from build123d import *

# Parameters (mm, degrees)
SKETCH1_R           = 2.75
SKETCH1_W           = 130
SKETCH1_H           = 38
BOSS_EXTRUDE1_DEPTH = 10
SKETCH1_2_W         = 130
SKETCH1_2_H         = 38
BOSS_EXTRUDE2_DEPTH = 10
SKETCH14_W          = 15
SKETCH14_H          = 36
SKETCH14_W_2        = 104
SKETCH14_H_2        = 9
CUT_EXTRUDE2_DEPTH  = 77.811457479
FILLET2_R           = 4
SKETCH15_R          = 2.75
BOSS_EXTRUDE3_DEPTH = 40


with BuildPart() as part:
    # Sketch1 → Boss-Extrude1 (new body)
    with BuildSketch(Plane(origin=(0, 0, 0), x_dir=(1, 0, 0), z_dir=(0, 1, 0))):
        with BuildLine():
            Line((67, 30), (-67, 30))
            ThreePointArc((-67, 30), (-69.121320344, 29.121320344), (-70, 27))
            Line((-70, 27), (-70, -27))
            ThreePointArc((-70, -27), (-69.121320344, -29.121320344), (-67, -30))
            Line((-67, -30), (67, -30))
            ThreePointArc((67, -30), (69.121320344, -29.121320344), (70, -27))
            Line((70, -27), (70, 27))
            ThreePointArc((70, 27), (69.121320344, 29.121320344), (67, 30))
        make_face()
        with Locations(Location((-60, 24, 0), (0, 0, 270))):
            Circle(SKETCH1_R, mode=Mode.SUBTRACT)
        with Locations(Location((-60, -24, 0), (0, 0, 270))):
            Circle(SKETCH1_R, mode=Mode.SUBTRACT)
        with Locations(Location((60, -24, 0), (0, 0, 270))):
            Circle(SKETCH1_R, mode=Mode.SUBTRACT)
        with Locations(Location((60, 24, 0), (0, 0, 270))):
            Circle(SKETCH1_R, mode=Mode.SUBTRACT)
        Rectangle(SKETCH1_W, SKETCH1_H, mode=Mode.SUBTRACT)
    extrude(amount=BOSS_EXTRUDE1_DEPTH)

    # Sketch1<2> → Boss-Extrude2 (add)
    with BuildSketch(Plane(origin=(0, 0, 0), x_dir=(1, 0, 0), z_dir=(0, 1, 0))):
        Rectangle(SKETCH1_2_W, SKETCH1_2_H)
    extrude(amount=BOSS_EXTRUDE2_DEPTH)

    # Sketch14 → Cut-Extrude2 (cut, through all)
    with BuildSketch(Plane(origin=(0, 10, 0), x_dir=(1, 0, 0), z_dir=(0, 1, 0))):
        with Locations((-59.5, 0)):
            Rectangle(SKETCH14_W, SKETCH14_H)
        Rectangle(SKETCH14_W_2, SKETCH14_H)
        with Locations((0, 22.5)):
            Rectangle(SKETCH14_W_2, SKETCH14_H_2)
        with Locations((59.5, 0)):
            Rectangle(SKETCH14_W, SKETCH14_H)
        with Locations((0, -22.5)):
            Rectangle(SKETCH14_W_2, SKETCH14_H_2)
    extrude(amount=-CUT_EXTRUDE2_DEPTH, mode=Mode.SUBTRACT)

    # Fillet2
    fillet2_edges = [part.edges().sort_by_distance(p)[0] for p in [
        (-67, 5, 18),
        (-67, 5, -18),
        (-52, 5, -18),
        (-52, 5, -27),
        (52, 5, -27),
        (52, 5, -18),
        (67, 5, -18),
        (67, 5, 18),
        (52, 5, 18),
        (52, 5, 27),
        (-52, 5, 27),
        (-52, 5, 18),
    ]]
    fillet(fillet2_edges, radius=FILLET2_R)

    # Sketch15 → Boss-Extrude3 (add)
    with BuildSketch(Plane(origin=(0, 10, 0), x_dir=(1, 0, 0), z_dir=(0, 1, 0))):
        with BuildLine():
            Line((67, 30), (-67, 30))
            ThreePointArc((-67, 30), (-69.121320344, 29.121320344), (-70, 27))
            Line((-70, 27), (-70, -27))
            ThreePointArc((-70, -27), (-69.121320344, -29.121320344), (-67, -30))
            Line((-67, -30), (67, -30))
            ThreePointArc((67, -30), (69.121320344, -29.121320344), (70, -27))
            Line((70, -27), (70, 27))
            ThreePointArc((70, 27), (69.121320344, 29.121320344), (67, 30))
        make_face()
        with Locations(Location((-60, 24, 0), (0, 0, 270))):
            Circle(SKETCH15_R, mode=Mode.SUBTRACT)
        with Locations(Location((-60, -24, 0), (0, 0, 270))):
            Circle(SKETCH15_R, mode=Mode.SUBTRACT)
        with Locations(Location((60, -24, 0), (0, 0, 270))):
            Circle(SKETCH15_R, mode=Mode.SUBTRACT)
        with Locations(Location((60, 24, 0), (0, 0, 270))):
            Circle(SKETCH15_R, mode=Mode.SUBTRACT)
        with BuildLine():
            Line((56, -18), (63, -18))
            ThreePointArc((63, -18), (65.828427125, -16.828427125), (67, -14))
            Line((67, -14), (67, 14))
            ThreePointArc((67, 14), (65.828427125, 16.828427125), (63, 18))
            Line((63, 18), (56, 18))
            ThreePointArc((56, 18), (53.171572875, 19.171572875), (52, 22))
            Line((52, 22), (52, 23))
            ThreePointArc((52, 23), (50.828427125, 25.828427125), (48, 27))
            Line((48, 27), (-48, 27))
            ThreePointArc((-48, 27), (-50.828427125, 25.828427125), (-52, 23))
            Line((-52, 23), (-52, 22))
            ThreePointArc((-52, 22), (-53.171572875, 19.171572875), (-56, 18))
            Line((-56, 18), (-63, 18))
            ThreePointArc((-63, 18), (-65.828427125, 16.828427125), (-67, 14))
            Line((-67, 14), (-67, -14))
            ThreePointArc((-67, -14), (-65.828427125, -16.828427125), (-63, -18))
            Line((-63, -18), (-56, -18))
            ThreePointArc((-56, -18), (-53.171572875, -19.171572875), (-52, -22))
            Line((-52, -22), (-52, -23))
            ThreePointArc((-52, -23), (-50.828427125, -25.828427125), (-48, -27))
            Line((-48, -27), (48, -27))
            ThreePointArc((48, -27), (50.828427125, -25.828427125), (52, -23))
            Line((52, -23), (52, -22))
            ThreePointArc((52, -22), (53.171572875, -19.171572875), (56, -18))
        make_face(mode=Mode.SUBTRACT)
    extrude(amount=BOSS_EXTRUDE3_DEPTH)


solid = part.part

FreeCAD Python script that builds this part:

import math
import FreeCAD as App
import Part
import Sketcher
from FreeCAD import Vector
Q = App.Units.Quantity


def edges_at(feature, points):
    """Names of the edges that pass closest to the given points."""
    edges = feature.Shape.Edges
    near = lambda p: min(range(len(edges)), key=lambda i: edges[i].distToShape(Part.Vertex(*p))[0])
    return sorted({f"Edge{near(p) + 1}" for p in points})


def add_polygon(sketch, points):
    """Adds a closed chain of lines whose ends are joined by coincident constraints."""
    first, n = sketch.GeometryCount, len(points)
    for a, b in zip(points, points[1:] + points[:1]):
        sketch.addGeometry(Part.LineSegment(App.Vector(*a, 0), App.Vector(*b, 0)), False)
    for i in range(n):
        sketch.addConstraint(Sketcher.Constraint("Coincident", first + i, 2, first + (i + 1) % n, 1))

doc = App.newDocument("Part")
body = doc.addObject("PartDesign::Body", "Body")

sketch1 = doc.addObject("Sketcher::SketchObject", "Sketch")
body.addObject(sketch1)
sketch1.AttachmentSupport = (doc.XZ_Plane, [""])
sketch1.MapMode = "FlatFace"
sketch1.addGeometry(Part.LineSegment(Vector(67, -30, 0), Vector(-67, -30, 0)), False)
sketch1.addGeometry(Part.ArcOfCircle(Part.Circle(Vector(-67, -27, 0), Vector(0, 0, 1), 3), math.radians(180), math.radians(270)), False)
sketch1.addGeometry(Part.LineSegment(Vector(-70, -27, 0), Vector(-70, 27, 0)), False)
sketch1.addGeometry(Part.ArcOfCircle(Part.Circle(Vector(-67, 27, 0), Vector(0, 0, 1), 3), math.radians(90), math.radians(180)), False)
sketch1.addGeometry(Part.LineSegment(Vector(-67, 30, 0), Vector(67, 30, 0)), False)
sketch1.addGeometry(Part.ArcOfCircle(Part.Circle(Vector(67, 27, 0), Vector(0, 0, 1), 3), math.radians(0), math.radians(90)), False)
sketch1.addGeometry(Part.LineSegment(Vector(70, 27, 0), Vector(70, -27, 0)), False)
sketch1.addGeometry(Part.ArcOfCircle(Part.Circle(Vector(67, -27, 0), Vector(0, 0, 1), 3), math.radians(-90), math.radians(0)), False)
sketch1.addGeometry(Part.Circle(Vector(-60, 24, 0), Vector(0, 0, 1), 2.8), False)
sketch1.addGeometry(Part.Circle(Vector(60, 24, 0), Vector(0, 0, 1), 2.8), False)
add_polygon(sketch1, [(65, 19), (-65, 19), (-65, -19), (65, -19)])
sketch1.addGeometry(Part.Circle(Vector(-60, -24, 0), Vector(0, 0, 1), 2.8), False)
sketch1.addGeometry(Part.Circle(Vector(60, -24, 0), Vector(0, 0, 1), 2.8), False)
sketch1.addConstraint(Sketcher.Constraint("Tangent", 0, 2, 1, 2))
sketch1.addConstraint(Sketcher.Constraint("Tangent", 1, 1, 2, 1))
sketch1.addConstraint(Sketcher.Constraint("Tangent", 2, 2, 3, 2))
sketch1.addConstraint(Sketcher.Constraint("Tangent", 3, 1, 4, 1))
sketch1.addConstraint(Sketcher.Constraint("Tangent", 4, 2, 5, 2))
sketch1.addConstraint(Sketcher.Constraint("Tangent", 5, 1, 6, 1))
sketch1.addConstraint(Sketcher.Constraint("Tangent", 6, 2, 7, 2))
sketch1.addConstraint(Sketcher.Constraint("Tangent", 7, 1, 0, 1))
sketch1.addConstraint(Sketcher.Constraint("Horizontal", 0))
sketch1.addConstraint(Sketcher.Constraint("Vertical", 2))
sketch1.addConstraint(Sketcher.Constraint("Horizontal", 4))
sketch1.addConstraint(Sketcher.Constraint("Vertical", 6))
sketch1.addConstraint(Sketcher.Constraint("Horizontal", 10))
sketch1.addConstraint(Sketcher.Constraint("Vertical", 11))
sketch1.addConstraint(Sketcher.Constraint("Horizontal", 12))
sketch1.addConstraint(Sketcher.Constraint("Vertical", 13))
sketch1.addConstraint(Sketcher.Constraint("Equal", 1, 3))
sketch1.addConstraint(Sketcher.Constraint("Equal", 3, 5))
sketch1.addConstraint(Sketcher.Constraint("Equal", 5, 7))
sketch1.addConstraint(Sketcher.Constraint("Equal", 8, 9))
sketch1.addConstraint(Sketcher.Constraint("Equal", 9, 14))
sketch1.addConstraint(Sketcher.Constraint("Equal", 14, 15))
sketch1.addConstraint(Sketcher.Constraint("Symmetric", 1, 3, 5, 3, -1, 1))
sketch1.addConstraint(Sketcher.Constraint("Symmetric", 9, 3, 14, 3, -1, 1))
sketch1.addConstraint(Sketcher.Constraint("Symmetric", 8, 3, 15, 3, -1, 1))
sketch1.addConstraint(Sketcher.Constraint("Symmetric", 10, 2, 12, 2, -1, 1))
sketch1.addConstraint(Sketcher.Constraint("Symmetric", 8, 3, 9, 3, -2))
sketch1.addConstraint(Sketcher.Constraint("Radius", 1, Q("3 mm")))
sketch1.addConstraint(Sketcher.Constraint("Diameter", 8, Q("5.5 mm")))
sketch1.addConstraint(Sketcher.Constraint("DistanceX", 0, 2, 0, 1, Q("134 mm")))
sketch1.addConstraint(Sketcher.Constraint("DistanceX", 10, 2, 10, 1, Q("130 mm")))
sketch1.addConstraint(Sketcher.Constraint("DistanceY", 2, 1, 2, 2, Q("54 mm")))
sketch1.addConstraint(Sketcher.Constraint("DistanceY", 11, 2, 11, 1, Q("38 mm")))
sketch1.addConstraint(Sketcher.Constraint("DistanceX", 8, 3, -1, 1, Q("60 mm")))
sketch1.addConstraint(Sketcher.Constraint("DistanceY", -1, 1, 8, 3, Q("24 mm")))
pad1 = doc.addObject("PartDesign::Pad", "Pad")
body.addObject(pad1)
pad1.Profile = sketch1
pad1.Length = 10
pad1.Reversed = True

sketch2 = doc.addObject("Sketcher::SketchObject", "Sketch001")
body.addObject(sketch2)
sketch2.AttachmentSupport = (doc.XZ_Plane, [""])
sketch2.MapMode = "FlatFace"
add_polygon(sketch2, [(-65, -19), (-65, 19), (65, 19), (65, -19)])
sketch2.addConstraint(Sketcher.Constraint("Vertical", 0))
sketch2.addConstraint(Sketcher.Constraint("Horizontal", 1))
sketch2.addConstraint(Sketcher.Constraint("Vertical", 2))
sketch2.addConstraint(Sketcher.Constraint("Horizontal", 3))
sketch2.addConstraint(Sketcher.Constraint("Symmetric", 0, 2, 2, 2, -1, 1))
sketch2.addConstraint(Sketcher.Constraint("DistanceX", 1, 1, 1, 2, Q("130 mm")))
sketch2.addConstraint(Sketcher.Constraint("DistanceY", 0, 1, 0, 2, Q("38 mm")))
pad2 = doc.addObject("PartDesign::Pad", "Pad001")
body.addObject(pad2)
pad2.Profile = sketch2
pad2.Length = 10
pad2.Reversed = True

sketch3 = doc.addObject("Sketcher::SketchObject", "Sketch002")
body.addObject(sketch3)
sketch3.AttachmentSupport = (doc.XZ_Plane, [""])
sketch3.MapMode = "FlatFace"
sketch3.AttachmentOffset = App.Placement(Vector(0, 0, -10), App.Rotation())
add_polygon(sketch3, [(-67, -18), (-67, 18), (-52, 18), (-52, 27), (52, 27), (52, 18), (67, 18), (67, -18), (52, -18), (52, -27), (-52, -27), (-52, -18)])
sketch3.addConstraint(Sketcher.Constraint("Vertical", 0))
sketch3.addConstraint(Sketcher.Constraint("Horizontal", 1))
sketch3.addConstraint(Sketcher.Constraint("Vertical", 2))
sketch3.addConstraint(Sketcher.Constraint("Horizontal", 3))
sketch3.addConstraint(Sketcher.Constraint("Vertical", 4))
sketch3.addConstraint(Sketcher.Constraint("Horizontal", 5))
sketch3.addConstraint(Sketcher.Constraint("Vertical", 6))
sketch3.addConstraint(Sketcher.Constraint("Horizontal", 7))
sketch3.addConstraint(Sketcher.Constraint("Vertical", 8))
sketch3.addConstraint(Sketcher.Constraint("Horizontal", 9))
sketch3.addConstraint(Sketcher.Constraint("Vertical", 10))
sketch3.addConstraint(Sketcher.Constraint("Horizontal", 11))
sketch3.addConstraint(Sketcher.Constraint("Symmetric", 0, 2, 6, 2, -1, 1))
sketch3.addConstraint(Sketcher.Constraint("Symmetric", 2, 2, 8, 2, -1, 1))
sketch3.addConstraint(Sketcher.Constraint("Symmetric", 4, 2, 10, 2, -1, 1))
sketch3.addConstraint(Sketcher.Constraint("Symmetric", 1, 2, 4, 2, -2))
sketch3.addConstraint(Sketcher.Constraint("DistanceX", 1, 1, 1, 2, Q("15 mm")))
sketch3.addConstraint(Sketcher.Constraint("DistanceX", 3, 1, 3, 2, Q("104 mm")))
sketch3.addConstraint(Sketcher.Constraint("DistanceY", 0, 1, 0, 2, Q("36 mm")))
sketch3.addConstraint(Sketcher.Constraint("DistanceY", 2, 1, 2, 2, Q("9 mm")))
pocket1 = doc.addObject("PartDesign::Pocket", "Pocket")
body.addObject(pocket1)
pocket1.Profile = sketch3
pocket1.Type = "ThroughAll"
pocket1.Reversed = True
doc.recompute()

fillet = doc.addObject("PartDesign::Fillet", "Fillet")
body.addObject(fillet)
fillet.Base = (pocket1, edges_at(pocket1, [
    (-67, 5, 18),
    (-67, 5, -18),
    (-52, 5, -18),
    (-52, 5, -27),
    (52, 5, -27),
    (52, 5, -18),
    (67, 5, -18),
    (67, 5, 18),
    (52, 5, 18),
    (52, 5, 27),
    (-52, 5, 27),
    (-52, 5, 18),
]))
fillet.Radius = 4

sketch4 = doc.addObject("Sketcher::SketchObject", "Sketch003")
body.addObject(sketch4)
sketch4.AttachmentSupport = (doc.XZ_Plane, [""])
sketch4.MapMode = "FlatFace"
sketch4.AttachmentOffset = App.Placement(Vector(0, 0, -10), App.Rotation())
sketch4.addGeometry(Part.LineSegment(Vector(67, -30, 0), Vector(-67, -30, 0)), False)
sketch4.addGeometry(Part.ArcOfCircle(Part.Circle(Vector(-67, -27, 0), Vector(0, 0, 1), 3), math.radians(180), math.radians(270)), False)
sketch4.addGeometry(Part.LineSegment(Vector(-70, -27, 0), Vector(-70, 27, 0)), False)
sketch4.addGeometry(Part.ArcOfCircle(Part.Circle(Vector(-67, 27, 0), Vector(0, 0, 1), 3), math.radians(90), math.radians(180)), False)
sketch4.addGeometry(Part.LineSegment(Vector(-67, 30, 0), Vector(67, 30, 0)), False)
sketch4.addGeometry(Part.ArcOfCircle(Part.Circle(Vector(67, 27, 0), Vector(0, 0, 1), 3), math.radians(0), math.radians(90)), False)
sketch4.addGeometry(Part.LineSegment(Vector(70, 27, 0), Vector(70, -27, 0)), False)
sketch4.addGeometry(Part.ArcOfCircle(Part.Circle(Vector(67, -27, 0), Vector(0, 0, 1), 3), math.radians(-90), math.radians(0)), False)
sketch4.addGeometry(Part.Circle(Vector(-60, 24, 0), Vector(0, 0, 1), 2.8), False)
sketch4.addGeometry(Part.Circle(Vector(60, 24, 0), Vector(0, 0, 1), 2.8), False)
sketch4.addGeometry(Part.Circle(Vector(-60, -24, 0), Vector(0, 0, 1), 2.8), False)
sketch4.addGeometry(Part.LineSegment(Vector(63, 18, 0), Vector(56, 18, 0)), False)
sketch4.addGeometry(Part.ArcOfCircle(Part.Circle(Vector(56, 22, 0), Vector(0, 0, 1), 4), math.radians(180), math.radians(270)), False)
sketch4.addGeometry(Part.LineSegment(Vector(52, 22, 0), Vector(52, 23, 0)), False)
sketch4.addGeometry(Part.ArcOfCircle(Part.Circle(Vector(48, 23, 0), Vector(0, 0, 1), 4), math.radians(0), math.radians(90)), False)
sketch4.addGeometry(Part.LineSegment(Vector(48, 27, 0), Vector(-48, 27, 0)), False)
sketch4.addGeometry(Part.ArcOfCircle(Part.Circle(Vector(-48, 23, 0), Vector(0, 0, 1), 4), math.radians(90), math.radians(180)), False)
sketch4.addGeometry(Part.LineSegment(Vector(-52, 23, 0), Vector(-52, 22, 0)), False)
sketch4.addGeometry(Part.ArcOfCircle(Part.Circle(Vector(-56, 22, 0), Vector(0, 0, 1), 4), math.radians(-90), math.radians(0)), False)
sketch4.addGeometry(Part.LineSegment(Vector(-56, 18, 0), Vector(-63, 18, 0)), False)
sketch4.addGeometry(Part.ArcOfCircle(Part.Circle(Vector(-63, 14, 0), Vector(0, 0, 1), 4), math.radians(90), math.radians(180)), False)
sketch4.addGeometry(Part.LineSegment(Vector(-67, 14, 0), Vector(-67, -14, 0)), False)
sketch4.addGeometry(Part.ArcOfCircle(Part.Circle(Vector(-63, -14, 0), Vector(0, 0, 1), 4), math.radians(180), math.radians(270)), False)
sketch4.addGeometry(Part.LineSegment(Vector(-63, -18, 0), Vector(-56, -18, 0)), False)
sketch4.addGeometry(Part.ArcOfCircle(Part.Circle(Vector(-56, -22, 0), Vector(0, 0, 1), 4), math.radians(0), math.radians(90)), False)
sketch4.addGeometry(Part.LineSegment(Vector(-52, -22, 0), Vector(-52, -23, 0)), False)
sketch4.addGeometry(Part.ArcOfCircle(Part.Circle(Vector(-48, -23, 0), Vector(0, 0, 1), 4), math.radians(180), math.radians(270)), False)
sketch4.addGeometry(Part.LineSegment(Vector(-48, -27, 0), Vector(48, -27, 0)), False)
sketch4.addGeometry(Part.ArcOfCircle(Part.Circle(Vector(48, -23, 0), Vector(0, 0, 1), 4), math.radians(-90), math.radians(0)), False)
sketch4.addGeometry(Part.LineSegment(Vector(52, -23, 0), Vector(52, -22, 0)), False)
sketch4.addGeometry(Part.ArcOfCircle(Part.Circle(Vector(56, -22, 0), Vector(0, 0, 1), 4), math.radians(90), math.radians(180)), False)
sketch4.addGeometry(Part.LineSegment(Vector(56, -18, 0), Vector(63, -18, 0)), False)
sketch4.addGeometry(Part.ArcOfCircle(Part.Circle(Vector(63, -14, 0), Vector(0, 0, 1), 4), math.radians(-90), math.radians(0)), False)
sketch4.addGeometry(Part.LineSegment(Vector(67, -14, 0), Vector(67, 14, 0)), False)
sketch4.addGeometry(Part.ArcOfCircle(Part.Circle(Vector(63, 14, 0), Vector(0, 0, 1), 4), math.radians(0), math.radians(90)), False)
sketch4.addGeometry(Part.Circle(Vector(60, -24, 0), Vector(0, 0, 1), 2.8), False)
sketch4.addConstraint(Sketcher.Constraint("Tangent", 0, 2, 1, 2))
sketch4.addConstraint(Sketcher.Constraint("Tangent", 1, 1, 2, 1))
sketch4.addConstraint(Sketcher.Constraint("Tangent", 2, 2, 3, 2))
sketch4.addConstraint(Sketcher.Constraint("Tangent", 3, 1, 4, 1))
sketch4.addConstraint(Sketcher.Constraint("Tangent", 4, 2, 5, 2))
sketch4.addConstraint(Sketcher.Constraint("Tangent", 5, 1, 6, 1))
sketch4.addConstraint(Sketcher.Constraint("Tangent", 6, 2, 7, 2))
sketch4.addConstraint(Sketcher.Constraint("Tangent", 7, 1, 0, 1))
sketch4.addConstraint(Sketcher.Constraint("Tangent", 11, 2, 12, 2))
sketch4.addConstraint(Sketcher.Constraint("Tangent", 12, 1, 13, 1))
sketch4.addConstraint(Sketcher.Constraint("Tangent", 13, 2, 14, 1))
sketch4.addConstraint(Sketcher.Constraint("Tangent", 14, 2, 15, 1))
sketch4.addConstraint(Sketcher.Constraint("Tangent", 15, 2, 16, 1))
sketch4.addConstraint(Sketcher.Constraint("Tangent", 16, 2, 17, 1))
sketch4.addConstraint(Sketcher.Constraint("Tangent", 17, 2, 18, 2))
sketch4.addConstraint(Sketcher.Constraint("Tangent", 18, 1, 19, 1))
sketch4.addConstraint(Sketcher.Constraint("Tangent", 19, 2, 20, 1))
sketch4.addConstraint(Sketcher.Constraint("Tangent", 20, 2, 21, 1))
sketch4.addConstraint(Sketcher.Constraint("Tangent", 21, 2, 22, 1))
sketch4.addConstraint(Sketcher.Constraint("Tangent", 22, 2, 23, 1))
sketch4.addConstraint(Sketcher.Constraint("Tangent", 23, 2, 24, 2))
sketch4.addConstraint(Sketcher.Constraint("Tangent", 24, 1, 25, 1))
sketch4.addConstraint(Sketcher.Constraint("Tangent", 25, 2, 26, 1))
sketch4.addConstraint(Sketcher.Constraint("Tangent", 26, 2, 27, 1))
sketch4.addConstraint(Sketcher.Constraint("Tangent", 27, 2, 28, 1))
sketch4.addConstraint(Sketcher.Constraint("Tangent", 28, 2, 29, 1))
sketch4.addConstraint(Sketcher.Constraint("Tangent", 29, 2, 30, 2))
sketch4.addConstraint(Sketcher.Constraint("Tangent", 30, 1, 31, 1))
sketch4.addConstraint(Sketcher.Constraint("Tangent", 31, 2, 32, 1))
sketch4.addConstraint(Sketcher.Constraint("Tangent", 32, 2, 33, 1))
sketch4.addConstraint(Sketcher.Constraint("Tangent", 33, 2, 34, 1))
sketch4.addConstraint(Sketcher.Constraint("Tangent", 34, 2, 11, 1))
sketch4.addConstraint(Sketcher.Constraint("Horizontal", 0))
sketch4.addConstraint(Sketcher.Constraint("Vertical", 2))
sketch4.addConstraint(Sketcher.Constraint("Horizontal", 4))
sketch4.addConstraint(Sketcher.Constraint("Vertical", 6))
sketch4.addConstraint(Sketcher.Constraint("Horizontal", 11))
sketch4.addConstraint(Sketcher.Constraint("Vertical", 13))
sketch4.addConstraint(Sketcher.Constraint("Horizontal", 15))
sketch4.addConstraint(Sketcher.Constraint("Vertical", 17))
sketch4.addConstraint(Sketcher.Constraint("Horizontal", 19))
sketch4.addConstraint(Sketcher.Constraint("Vertical", 21))
sketch4.addConstraint(Sketcher.Constraint("Horizontal", 23))
sketch4.addConstraint(Sketcher.Constraint("Vertical", 25))
sketch4.addConstraint(Sketcher.Constraint("Horizontal", 27))
sketch4.addConstraint(Sketcher.Constraint("Vertical", 29))
sketch4.addConstraint(Sketcher.Constraint("Horizontal", 31))
sketch4.addConstraint(Sketcher.Constraint("Vertical", 33))
sketch4.addConstraint(Sketcher.Constraint("Equal", 1, 3))
sketch4.addConstraint(Sketcher.Constraint("Equal", 3, 5))
sketch4.addConstraint(Sketcher.Constraint("Equal", 5, 7))
sketch4.addConstraint(Sketcher.Constraint("Equal", 8, 9))
sketch4.addConstraint(Sketcher.Constraint("Equal", 9, 10))
sketch4.addConstraint(Sketcher.Constraint("Equal", 12, 14))
sketch4.addConstraint(Sketcher.Constraint("Equal", 14, 16))
sketch4.addConstraint(Sketcher.Constraint("Equal", 16, 18))
sketch4.addConstraint(Sketcher.Constraint("Equal", 18, 20))
sketch4.addConstraint(Sketcher.Constraint("Equal", 20, 22))
sketch4.addConstraint(Sketcher.Constraint("Equal", 22, 24))
sketch4.addConstraint(Sketcher.Constraint("Equal", 24, 26))
sketch4.addConstraint(Sketcher.Constraint("Equal", 26, 28))
sketch4.addConstraint(Sketcher.Constraint("Equal", 28, 30))
sketch4.addConstraint(Sketcher.Constraint("Equal", 30, 32))
sketch4.addConstraint(Sketcher.Constraint("Equal", 32, 34))
sketch4.addConstraint(Sketcher.Constraint("Equal", 10, 35))
sketch4.addConstraint(Sketcher.Constraint("Symmetric", 1, 3, 5, 3, -1, 1))
sketch4.addConstraint(Sketcher.Constraint("Symmetric", 9, 3, 10, 3, -1, 1))
sketch4.addConstraint(Sketcher.Constraint("Symmetric", 12, 3, 24, 3, -1, 1))
sketch4.addConstraint(Sketcher.Constraint("Symmetric", 16, 3, 28, 3, -1, 1))
sketch4.addConstraint(Sketcher.Constraint("Symmetric", 20, 3, 32, 3, -1, 1))
sketch4.addConstraint(Sketcher.Constraint("Symmetric", 8, 3, 35, 3, -1, 1))
sketch4.addConstraint(Sketcher.Constraint("Symmetric", 8, 3, 9, 3, -2))
sketch4.addConstraint(Sketcher.Constraint("Symmetric", 12, 3, 18, 3, -2))
sketch4.addConstraint(Sketcher.Constraint("Horizontal", 5, 1, 14, 2))
sketch4.addConstraint(Sketcher.Constraint("Vertical", 3, 1, 20, 2))
sketch4.addConstraint(Sketcher.Constraint("Radius", 1, Q("3 mm")))
sketch4.addConstraint(Sketcher.Constraint("Radius", 12, Q("4 mm")))
sketch4.addConstraint(Sketcher.Constraint("Diameter", 8, Q("5.5 mm")))
sketch4.addConstraint(Sketcher.Constraint("DistanceX", 0, 2, 0, 1, Q("134 mm")))
sketch4.addConstraint(Sketcher.Constraint("DistanceX", 11, 2, 11, 1, Q("7 mm")))
sketch4.addConstraint(Sketcher.Constraint("DistanceY", 2, 1, 2, 2, Q("54 mm")))
sketch4.addConstraint(Sketcher.Constraint("DistanceY", 13, 1, 13, 2, Q("1 mm")))
sketch4.addConstraint(Sketcher.Constraint("DistanceX", 8, 3, -1, 1, Q("60 mm")))
sketch4.addConstraint(Sketcher.Constraint("DistanceY", -1, 1, 8, 3, Q("24 mm")))
pad3 = doc.addObject("PartDesign::Pad", "Pad002")
body.addObject(pad3)
pad3.Profile = sketch4
pad3.Length = 40
pad3.Reversed = True

doc.recompute()
